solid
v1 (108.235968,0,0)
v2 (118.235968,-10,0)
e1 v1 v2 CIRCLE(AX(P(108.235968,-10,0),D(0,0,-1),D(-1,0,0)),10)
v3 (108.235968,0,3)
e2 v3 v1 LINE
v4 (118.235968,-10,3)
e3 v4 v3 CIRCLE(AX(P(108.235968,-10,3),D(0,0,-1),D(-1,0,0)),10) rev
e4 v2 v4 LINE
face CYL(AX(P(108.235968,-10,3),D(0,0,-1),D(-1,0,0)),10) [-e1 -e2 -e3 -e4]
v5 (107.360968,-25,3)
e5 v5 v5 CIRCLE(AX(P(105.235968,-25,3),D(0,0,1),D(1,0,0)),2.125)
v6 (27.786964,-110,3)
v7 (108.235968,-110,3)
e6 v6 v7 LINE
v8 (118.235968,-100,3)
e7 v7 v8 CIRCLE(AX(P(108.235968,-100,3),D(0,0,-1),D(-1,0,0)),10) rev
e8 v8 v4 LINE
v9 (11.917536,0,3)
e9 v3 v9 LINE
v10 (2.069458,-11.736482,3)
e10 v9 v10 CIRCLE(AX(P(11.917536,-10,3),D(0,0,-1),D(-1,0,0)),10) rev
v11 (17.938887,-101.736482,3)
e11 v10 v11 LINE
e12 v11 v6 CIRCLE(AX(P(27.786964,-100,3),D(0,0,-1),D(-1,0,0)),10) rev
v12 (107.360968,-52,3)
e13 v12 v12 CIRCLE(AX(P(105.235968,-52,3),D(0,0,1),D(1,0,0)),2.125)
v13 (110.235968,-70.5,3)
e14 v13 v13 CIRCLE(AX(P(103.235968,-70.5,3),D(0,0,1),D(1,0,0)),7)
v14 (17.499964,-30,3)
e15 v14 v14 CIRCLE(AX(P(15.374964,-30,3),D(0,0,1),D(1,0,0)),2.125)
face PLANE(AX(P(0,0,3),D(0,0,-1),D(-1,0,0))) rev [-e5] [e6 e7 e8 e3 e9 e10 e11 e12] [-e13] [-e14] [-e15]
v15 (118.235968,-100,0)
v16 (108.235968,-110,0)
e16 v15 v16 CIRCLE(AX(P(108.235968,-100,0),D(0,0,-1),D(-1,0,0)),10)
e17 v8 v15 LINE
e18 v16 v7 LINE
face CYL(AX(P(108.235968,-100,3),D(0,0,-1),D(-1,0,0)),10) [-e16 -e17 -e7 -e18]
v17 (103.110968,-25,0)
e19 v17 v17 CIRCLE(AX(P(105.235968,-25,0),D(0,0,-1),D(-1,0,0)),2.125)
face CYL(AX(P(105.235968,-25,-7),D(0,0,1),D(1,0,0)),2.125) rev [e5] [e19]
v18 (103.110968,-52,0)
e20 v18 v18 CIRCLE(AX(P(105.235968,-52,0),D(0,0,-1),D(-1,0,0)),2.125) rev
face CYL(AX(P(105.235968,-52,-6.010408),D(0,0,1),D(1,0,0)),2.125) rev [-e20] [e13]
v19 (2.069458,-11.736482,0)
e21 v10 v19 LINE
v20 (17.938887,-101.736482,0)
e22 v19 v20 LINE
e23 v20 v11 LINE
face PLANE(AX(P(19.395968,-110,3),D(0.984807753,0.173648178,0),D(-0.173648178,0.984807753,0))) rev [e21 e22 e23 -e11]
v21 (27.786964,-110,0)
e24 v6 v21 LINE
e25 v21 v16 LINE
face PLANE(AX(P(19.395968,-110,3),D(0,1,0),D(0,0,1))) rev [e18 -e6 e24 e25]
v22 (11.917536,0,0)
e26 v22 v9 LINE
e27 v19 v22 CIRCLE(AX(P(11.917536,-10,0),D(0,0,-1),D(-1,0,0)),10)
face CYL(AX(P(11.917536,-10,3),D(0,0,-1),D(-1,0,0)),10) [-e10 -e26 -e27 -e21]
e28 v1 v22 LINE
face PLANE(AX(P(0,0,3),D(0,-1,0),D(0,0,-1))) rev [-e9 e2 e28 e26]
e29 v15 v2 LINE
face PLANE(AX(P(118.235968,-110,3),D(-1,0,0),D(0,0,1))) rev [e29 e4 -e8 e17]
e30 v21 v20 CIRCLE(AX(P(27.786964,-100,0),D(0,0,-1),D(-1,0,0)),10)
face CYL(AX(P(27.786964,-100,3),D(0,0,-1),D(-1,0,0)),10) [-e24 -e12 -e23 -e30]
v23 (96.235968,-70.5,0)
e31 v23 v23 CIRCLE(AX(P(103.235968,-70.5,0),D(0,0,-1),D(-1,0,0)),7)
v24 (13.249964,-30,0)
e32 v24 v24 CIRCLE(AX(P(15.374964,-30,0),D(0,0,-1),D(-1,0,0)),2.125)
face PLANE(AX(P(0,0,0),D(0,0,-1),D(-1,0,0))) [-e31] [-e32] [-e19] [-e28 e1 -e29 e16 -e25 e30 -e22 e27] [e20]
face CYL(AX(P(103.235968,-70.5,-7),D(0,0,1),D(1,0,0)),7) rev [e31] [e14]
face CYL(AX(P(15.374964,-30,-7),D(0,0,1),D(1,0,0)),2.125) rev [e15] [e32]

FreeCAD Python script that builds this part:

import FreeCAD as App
import Part
import Sketcher
Q = App.Units.Quantity


def edges_at(feature, points):
    """Names of the edges that pass closest to the given points."""
    edges = feature.Shape.Edges
    near = lambda p: min(range(len(edges)), key=lambda i: edges[i].distToShape(Part.Vertex(*p))[0])
    return sorted({f"Edge{near(p) + 1}" for p in points})

doc = App.newDocument("Part")
params = doc.addObject("Spreadsheet::Sheet", "Params")
for row, (alias, value) in enumerate([
    ("sketch1_height", "110 mm"),
    ("sketch1_width", "98.84 mm"),
    ("pad1_length", "3 mm"),
    ("sketch2_diameter", "14 mm"),
    ("sketch2_diameter2", "4.25 mm"),
    ("pocket1_length", "10 mm"),
    ("fillet_radius", "10 mm"),
    ("sketch3_diameter", "4.25 mm"),
    ("pocket2_length", "3 mm"),
], start=1):
    params.set(f"A{row}", alias)
    params.set(f"B{row}", "=" + value)
    params.setAlias(f"B{row}", alias)

body = doc.addObject("PartDesign::Body", "Body")

# Sketch on XY plane
sketch1 = body.newObject("Sketcher::SketchObject", "Sketch")
sketch1.AttachmentSupport = (doc.getObject("XY_Plane"), [""])
sketch1.MapMode = "FlatFace"
sketch1.addGeometry(Part.LineSegment(App.Vector(118.235968, 0, 0), App.Vector(0, 0, 0)), False)
sketch1.addGeometry(Part.LineSegment(App.Vector(0, 0, 0), App.Vector(19.395968, -110, 0)), False)
sketch1.addGeometry(Part.LineSegment(App.Vector(19.395968, -110, 0), App.Vector(118.235968, -110, 0)), False)
sketch1.addGeometry(Part.LineSegment(App.Vector(118.235968, -110, 0), App.Vector(118.235968, 0, 0)), False)
sketch1.addConstraint(Sketcher.Constraint("Coincident", 0, 2, 1, 1))
sketch1.addConstraint(Sketcher.Constraint("Coincident", 1, 2, 2, 1))
sketch1.addConstraint(Sketcher.Constraint("Coincident", 2, 2, 3, 1))
sketch1.addConstraint(Sketcher.Constraint("Coincident", 3, 2, 0, 1))
sketch1.addConstraint(Sketcher.Constraint("Horizontal", 0))
sketch1.addConstraint(Sketcher.Constraint("Horizontal", 2))
sketch1.addConstraint(Sketcher.Constraint("Vertical", 3))
sketch1.addConstraint(Sketcher.Constraint("Coincident", 0, 2, -1, 1))
sketch1.addConstraint(Sketcher.Constraint("DistanceY", 3, 1, 3, 2, Q("110 mm")))
sketch1.addConstraint(Sketcher.Constraint("Angle", 1, Q("-80 deg")))
sketch1.addConstraint(Sketcher.Constraint("DistanceX", 2, 1, 2, 2, Q("98.84 mm")))
sketch1.setExpression("Constraints[8]", "Params.sketch1_height")
sketch1.setExpression("Constraints[10]", "Params.sketch1_width")
pad1 = body.newObject("PartDesign::Pad", "Pad")
pad1.Profile = sketch1
pad1.setExpression("Length", "Params.pad1_length")

# Sketch on XY plane
sketch2 = body.newObject("Sketcher::SketchObject", "Sketch001")
sketch2.AttachmentSupport = (doc.getObject("XY_Plane"), [""])
sketch2.MapMode = "FlatFace"
sketch2.AttachmentOffset = App.Placement(App.Vector(0, 0, 3), App.Rotation())
sketch2.addGeometry(Part.Circle(App.Vector(105.235968, -25, 0), App.Vector(0, 0, 1), 2.125), False)
sketch2.addGeometry(Part.Circle(App.Vector(15.374964, -30, 0), App.Vector(0, 0, 1), 2.125), False)
sketch2.addGeometry(Part.Circle(App.Vector(103.235968, -70.5, 0), App.Vector(0, 0, 1), 7), False)
sketch2.addConstraint(Sketcher.Constraint("Equal", 0, 1))
sketch2.addConstraint(Sketcher.Constraint("Diameter", 2, Q("14 mm")))
sketch2.addConstraint(Sketcher.Constraint("Diameter", 0, Q("4.25 mm")))
sketch2.addConstraint(Sketcher.Constraint("DistanceY", 0, 3, -1, 1, Q("25 mm")))
sketch2.addConstraint(Sketcher.Constraint("DistanceY", 1, 3, -1, 1, Q("30 mm")))
sketch2.addConstraint(Sketcher.Constraint("DistanceX", 2, 3, 0, 3, Q("2 mm")))
sketch2.addConstraint(Sketcher.Constraint("DistanceY", 2, 3, -1, 1, Q("70.5 mm")))
sketch2.addConstraint(Sketcher.Constraint("DistanceX", -1, 1, 0, 3, Q("105.235968 mm")))
sketch2.addConstraint(Sketcher.Constraint("DistanceX", -1, 1, 1, 3, Q("15.374964 mm")))
sketch2.setExpression("Constraints[1]", "Params.sketch2_diameter")
sketch2.setExpression("Constraints[2]", "Params.sketch2_diameter2")
pocket1 = body.newObject("PartDesign::Pocket", "Pocket")
pocket1.Profile = sketch2
pocket1.setExpression("Length", "Params.pocket1_length")
doc.recompute()

fillet = body.newObject("PartDesign::Fillet", "Fillet")
fillet.Base = (pocket1, edges_at(pocket1, [
    (0, 0, 1.5),
    (118.236, 0, 1.5),
    (118.236, -110, 1.5),
    (19.396, -110, 1.5),
]))
fillet.setExpression("Radius", "Params.fillet_radius")

# Sketch on XY plane
sketch3 = body.newObject("Sketcher::SketchObject", "Sketch002")
sketch3.AttachmentSupport = (doc.getObject("XY_Plane"), [""])
sketch3.MapMode = "FlatFace"
sketch3.AttachmentOffset = App.Placement(App.Vector(0, 0, 3), App.Rotation())
sketch3.addGeometry(Part.Circle(App.Vector(105.235968, -52, 0), App.Vector(0, 0, 1), 2.125), False)
sketch3.addConstraint(Sketcher.Constraint("Diameter", 0, Q("4.25 mm")))
sketch3.addConstraint(Sketcher.Constraint("DistanceY", 0, 3, -1, 1, Q("52 mm")))
sketch3.addConstraint(Sketcher.Constraint("DistanceX", -1, 1, 0, 3, Q("105.235968 mm")))
sketch3.setExpression("Constraints[0]", "Params.sketch3_diameter")
pocket2 = body.newObject("PartDesign::Pocket", "Pocket001")
pocket2.Profile = sketch3
pocket2.setExpression("Length", "Params.pocket2_length")

doc.recompute()
